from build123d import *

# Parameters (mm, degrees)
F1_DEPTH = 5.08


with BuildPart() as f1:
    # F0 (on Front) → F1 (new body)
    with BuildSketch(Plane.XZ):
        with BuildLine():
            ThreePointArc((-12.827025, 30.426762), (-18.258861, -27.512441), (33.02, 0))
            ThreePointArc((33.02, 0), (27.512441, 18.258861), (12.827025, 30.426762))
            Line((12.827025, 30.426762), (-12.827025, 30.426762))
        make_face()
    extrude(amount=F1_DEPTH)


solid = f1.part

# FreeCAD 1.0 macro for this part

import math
import FreeCAD as App
import Part
import Sketcher
from FreeCAD import Vector
Q = App.Units.Quantity

doc = App.newDocument("Part")
body = doc.addObject("PartDesign::Body", "Body")

# Sketch on XZ plane
sketch1 = doc.addObject("Sketcher::SketchObject", "Sketch")
body.addObject(sketch1)
sketch1.AttachmentSupport = (doc.XZ_Plane, [""])
sketch1.MapMode = "FlatFace"
sketch1.addGeometry([
    Part.ArcOfCircle(Part.Circle(Vector(0, 0, 0), Vector(0, 0, 1), 33), math.radians(113), math.radians(360)),
    Part.ArcOfCircle(Part.Circle(Vector(0, 0, 0), Vector(0, 0, 1), 33), math.radians(0), math.radians(67)),
    Part.LineSegment(Vector(13, 30, 0), Vector(-13, 30, 0)),
], False)
sketch1.addConstraint([
    Sketcher.Constraint("Tangent", 0, 2, 1, 1),
    Sketcher.Constraint("Coincident", 1, 2, 2, 1),
    Sketcher.Constraint("Coincident", 2, 2, 0, 1),
    Sketcher.Constraint("Horizontal", 2),
    Sketcher.Constraint("Coincident", 0, 3, -1, 1),
    Sketcher.Constraint("Equal", 0, 1),
    Sketcher.Constraint("PointOnObject", 0, 2, -1),
    Sketcher.Constraint("Radius", 0, Q("1.3 in")),
    Sketcher.Constraint("DistanceX", 2, 2, 2, 1, Q("25.65405 mm")),
])
pad1 = doc.addObject("PartDesign::Pad", "Pad")
body.addObject(pad1)
pad1.Profile = sketch1
pad1.Length = Q("0.2 in")

doc.recompute()
